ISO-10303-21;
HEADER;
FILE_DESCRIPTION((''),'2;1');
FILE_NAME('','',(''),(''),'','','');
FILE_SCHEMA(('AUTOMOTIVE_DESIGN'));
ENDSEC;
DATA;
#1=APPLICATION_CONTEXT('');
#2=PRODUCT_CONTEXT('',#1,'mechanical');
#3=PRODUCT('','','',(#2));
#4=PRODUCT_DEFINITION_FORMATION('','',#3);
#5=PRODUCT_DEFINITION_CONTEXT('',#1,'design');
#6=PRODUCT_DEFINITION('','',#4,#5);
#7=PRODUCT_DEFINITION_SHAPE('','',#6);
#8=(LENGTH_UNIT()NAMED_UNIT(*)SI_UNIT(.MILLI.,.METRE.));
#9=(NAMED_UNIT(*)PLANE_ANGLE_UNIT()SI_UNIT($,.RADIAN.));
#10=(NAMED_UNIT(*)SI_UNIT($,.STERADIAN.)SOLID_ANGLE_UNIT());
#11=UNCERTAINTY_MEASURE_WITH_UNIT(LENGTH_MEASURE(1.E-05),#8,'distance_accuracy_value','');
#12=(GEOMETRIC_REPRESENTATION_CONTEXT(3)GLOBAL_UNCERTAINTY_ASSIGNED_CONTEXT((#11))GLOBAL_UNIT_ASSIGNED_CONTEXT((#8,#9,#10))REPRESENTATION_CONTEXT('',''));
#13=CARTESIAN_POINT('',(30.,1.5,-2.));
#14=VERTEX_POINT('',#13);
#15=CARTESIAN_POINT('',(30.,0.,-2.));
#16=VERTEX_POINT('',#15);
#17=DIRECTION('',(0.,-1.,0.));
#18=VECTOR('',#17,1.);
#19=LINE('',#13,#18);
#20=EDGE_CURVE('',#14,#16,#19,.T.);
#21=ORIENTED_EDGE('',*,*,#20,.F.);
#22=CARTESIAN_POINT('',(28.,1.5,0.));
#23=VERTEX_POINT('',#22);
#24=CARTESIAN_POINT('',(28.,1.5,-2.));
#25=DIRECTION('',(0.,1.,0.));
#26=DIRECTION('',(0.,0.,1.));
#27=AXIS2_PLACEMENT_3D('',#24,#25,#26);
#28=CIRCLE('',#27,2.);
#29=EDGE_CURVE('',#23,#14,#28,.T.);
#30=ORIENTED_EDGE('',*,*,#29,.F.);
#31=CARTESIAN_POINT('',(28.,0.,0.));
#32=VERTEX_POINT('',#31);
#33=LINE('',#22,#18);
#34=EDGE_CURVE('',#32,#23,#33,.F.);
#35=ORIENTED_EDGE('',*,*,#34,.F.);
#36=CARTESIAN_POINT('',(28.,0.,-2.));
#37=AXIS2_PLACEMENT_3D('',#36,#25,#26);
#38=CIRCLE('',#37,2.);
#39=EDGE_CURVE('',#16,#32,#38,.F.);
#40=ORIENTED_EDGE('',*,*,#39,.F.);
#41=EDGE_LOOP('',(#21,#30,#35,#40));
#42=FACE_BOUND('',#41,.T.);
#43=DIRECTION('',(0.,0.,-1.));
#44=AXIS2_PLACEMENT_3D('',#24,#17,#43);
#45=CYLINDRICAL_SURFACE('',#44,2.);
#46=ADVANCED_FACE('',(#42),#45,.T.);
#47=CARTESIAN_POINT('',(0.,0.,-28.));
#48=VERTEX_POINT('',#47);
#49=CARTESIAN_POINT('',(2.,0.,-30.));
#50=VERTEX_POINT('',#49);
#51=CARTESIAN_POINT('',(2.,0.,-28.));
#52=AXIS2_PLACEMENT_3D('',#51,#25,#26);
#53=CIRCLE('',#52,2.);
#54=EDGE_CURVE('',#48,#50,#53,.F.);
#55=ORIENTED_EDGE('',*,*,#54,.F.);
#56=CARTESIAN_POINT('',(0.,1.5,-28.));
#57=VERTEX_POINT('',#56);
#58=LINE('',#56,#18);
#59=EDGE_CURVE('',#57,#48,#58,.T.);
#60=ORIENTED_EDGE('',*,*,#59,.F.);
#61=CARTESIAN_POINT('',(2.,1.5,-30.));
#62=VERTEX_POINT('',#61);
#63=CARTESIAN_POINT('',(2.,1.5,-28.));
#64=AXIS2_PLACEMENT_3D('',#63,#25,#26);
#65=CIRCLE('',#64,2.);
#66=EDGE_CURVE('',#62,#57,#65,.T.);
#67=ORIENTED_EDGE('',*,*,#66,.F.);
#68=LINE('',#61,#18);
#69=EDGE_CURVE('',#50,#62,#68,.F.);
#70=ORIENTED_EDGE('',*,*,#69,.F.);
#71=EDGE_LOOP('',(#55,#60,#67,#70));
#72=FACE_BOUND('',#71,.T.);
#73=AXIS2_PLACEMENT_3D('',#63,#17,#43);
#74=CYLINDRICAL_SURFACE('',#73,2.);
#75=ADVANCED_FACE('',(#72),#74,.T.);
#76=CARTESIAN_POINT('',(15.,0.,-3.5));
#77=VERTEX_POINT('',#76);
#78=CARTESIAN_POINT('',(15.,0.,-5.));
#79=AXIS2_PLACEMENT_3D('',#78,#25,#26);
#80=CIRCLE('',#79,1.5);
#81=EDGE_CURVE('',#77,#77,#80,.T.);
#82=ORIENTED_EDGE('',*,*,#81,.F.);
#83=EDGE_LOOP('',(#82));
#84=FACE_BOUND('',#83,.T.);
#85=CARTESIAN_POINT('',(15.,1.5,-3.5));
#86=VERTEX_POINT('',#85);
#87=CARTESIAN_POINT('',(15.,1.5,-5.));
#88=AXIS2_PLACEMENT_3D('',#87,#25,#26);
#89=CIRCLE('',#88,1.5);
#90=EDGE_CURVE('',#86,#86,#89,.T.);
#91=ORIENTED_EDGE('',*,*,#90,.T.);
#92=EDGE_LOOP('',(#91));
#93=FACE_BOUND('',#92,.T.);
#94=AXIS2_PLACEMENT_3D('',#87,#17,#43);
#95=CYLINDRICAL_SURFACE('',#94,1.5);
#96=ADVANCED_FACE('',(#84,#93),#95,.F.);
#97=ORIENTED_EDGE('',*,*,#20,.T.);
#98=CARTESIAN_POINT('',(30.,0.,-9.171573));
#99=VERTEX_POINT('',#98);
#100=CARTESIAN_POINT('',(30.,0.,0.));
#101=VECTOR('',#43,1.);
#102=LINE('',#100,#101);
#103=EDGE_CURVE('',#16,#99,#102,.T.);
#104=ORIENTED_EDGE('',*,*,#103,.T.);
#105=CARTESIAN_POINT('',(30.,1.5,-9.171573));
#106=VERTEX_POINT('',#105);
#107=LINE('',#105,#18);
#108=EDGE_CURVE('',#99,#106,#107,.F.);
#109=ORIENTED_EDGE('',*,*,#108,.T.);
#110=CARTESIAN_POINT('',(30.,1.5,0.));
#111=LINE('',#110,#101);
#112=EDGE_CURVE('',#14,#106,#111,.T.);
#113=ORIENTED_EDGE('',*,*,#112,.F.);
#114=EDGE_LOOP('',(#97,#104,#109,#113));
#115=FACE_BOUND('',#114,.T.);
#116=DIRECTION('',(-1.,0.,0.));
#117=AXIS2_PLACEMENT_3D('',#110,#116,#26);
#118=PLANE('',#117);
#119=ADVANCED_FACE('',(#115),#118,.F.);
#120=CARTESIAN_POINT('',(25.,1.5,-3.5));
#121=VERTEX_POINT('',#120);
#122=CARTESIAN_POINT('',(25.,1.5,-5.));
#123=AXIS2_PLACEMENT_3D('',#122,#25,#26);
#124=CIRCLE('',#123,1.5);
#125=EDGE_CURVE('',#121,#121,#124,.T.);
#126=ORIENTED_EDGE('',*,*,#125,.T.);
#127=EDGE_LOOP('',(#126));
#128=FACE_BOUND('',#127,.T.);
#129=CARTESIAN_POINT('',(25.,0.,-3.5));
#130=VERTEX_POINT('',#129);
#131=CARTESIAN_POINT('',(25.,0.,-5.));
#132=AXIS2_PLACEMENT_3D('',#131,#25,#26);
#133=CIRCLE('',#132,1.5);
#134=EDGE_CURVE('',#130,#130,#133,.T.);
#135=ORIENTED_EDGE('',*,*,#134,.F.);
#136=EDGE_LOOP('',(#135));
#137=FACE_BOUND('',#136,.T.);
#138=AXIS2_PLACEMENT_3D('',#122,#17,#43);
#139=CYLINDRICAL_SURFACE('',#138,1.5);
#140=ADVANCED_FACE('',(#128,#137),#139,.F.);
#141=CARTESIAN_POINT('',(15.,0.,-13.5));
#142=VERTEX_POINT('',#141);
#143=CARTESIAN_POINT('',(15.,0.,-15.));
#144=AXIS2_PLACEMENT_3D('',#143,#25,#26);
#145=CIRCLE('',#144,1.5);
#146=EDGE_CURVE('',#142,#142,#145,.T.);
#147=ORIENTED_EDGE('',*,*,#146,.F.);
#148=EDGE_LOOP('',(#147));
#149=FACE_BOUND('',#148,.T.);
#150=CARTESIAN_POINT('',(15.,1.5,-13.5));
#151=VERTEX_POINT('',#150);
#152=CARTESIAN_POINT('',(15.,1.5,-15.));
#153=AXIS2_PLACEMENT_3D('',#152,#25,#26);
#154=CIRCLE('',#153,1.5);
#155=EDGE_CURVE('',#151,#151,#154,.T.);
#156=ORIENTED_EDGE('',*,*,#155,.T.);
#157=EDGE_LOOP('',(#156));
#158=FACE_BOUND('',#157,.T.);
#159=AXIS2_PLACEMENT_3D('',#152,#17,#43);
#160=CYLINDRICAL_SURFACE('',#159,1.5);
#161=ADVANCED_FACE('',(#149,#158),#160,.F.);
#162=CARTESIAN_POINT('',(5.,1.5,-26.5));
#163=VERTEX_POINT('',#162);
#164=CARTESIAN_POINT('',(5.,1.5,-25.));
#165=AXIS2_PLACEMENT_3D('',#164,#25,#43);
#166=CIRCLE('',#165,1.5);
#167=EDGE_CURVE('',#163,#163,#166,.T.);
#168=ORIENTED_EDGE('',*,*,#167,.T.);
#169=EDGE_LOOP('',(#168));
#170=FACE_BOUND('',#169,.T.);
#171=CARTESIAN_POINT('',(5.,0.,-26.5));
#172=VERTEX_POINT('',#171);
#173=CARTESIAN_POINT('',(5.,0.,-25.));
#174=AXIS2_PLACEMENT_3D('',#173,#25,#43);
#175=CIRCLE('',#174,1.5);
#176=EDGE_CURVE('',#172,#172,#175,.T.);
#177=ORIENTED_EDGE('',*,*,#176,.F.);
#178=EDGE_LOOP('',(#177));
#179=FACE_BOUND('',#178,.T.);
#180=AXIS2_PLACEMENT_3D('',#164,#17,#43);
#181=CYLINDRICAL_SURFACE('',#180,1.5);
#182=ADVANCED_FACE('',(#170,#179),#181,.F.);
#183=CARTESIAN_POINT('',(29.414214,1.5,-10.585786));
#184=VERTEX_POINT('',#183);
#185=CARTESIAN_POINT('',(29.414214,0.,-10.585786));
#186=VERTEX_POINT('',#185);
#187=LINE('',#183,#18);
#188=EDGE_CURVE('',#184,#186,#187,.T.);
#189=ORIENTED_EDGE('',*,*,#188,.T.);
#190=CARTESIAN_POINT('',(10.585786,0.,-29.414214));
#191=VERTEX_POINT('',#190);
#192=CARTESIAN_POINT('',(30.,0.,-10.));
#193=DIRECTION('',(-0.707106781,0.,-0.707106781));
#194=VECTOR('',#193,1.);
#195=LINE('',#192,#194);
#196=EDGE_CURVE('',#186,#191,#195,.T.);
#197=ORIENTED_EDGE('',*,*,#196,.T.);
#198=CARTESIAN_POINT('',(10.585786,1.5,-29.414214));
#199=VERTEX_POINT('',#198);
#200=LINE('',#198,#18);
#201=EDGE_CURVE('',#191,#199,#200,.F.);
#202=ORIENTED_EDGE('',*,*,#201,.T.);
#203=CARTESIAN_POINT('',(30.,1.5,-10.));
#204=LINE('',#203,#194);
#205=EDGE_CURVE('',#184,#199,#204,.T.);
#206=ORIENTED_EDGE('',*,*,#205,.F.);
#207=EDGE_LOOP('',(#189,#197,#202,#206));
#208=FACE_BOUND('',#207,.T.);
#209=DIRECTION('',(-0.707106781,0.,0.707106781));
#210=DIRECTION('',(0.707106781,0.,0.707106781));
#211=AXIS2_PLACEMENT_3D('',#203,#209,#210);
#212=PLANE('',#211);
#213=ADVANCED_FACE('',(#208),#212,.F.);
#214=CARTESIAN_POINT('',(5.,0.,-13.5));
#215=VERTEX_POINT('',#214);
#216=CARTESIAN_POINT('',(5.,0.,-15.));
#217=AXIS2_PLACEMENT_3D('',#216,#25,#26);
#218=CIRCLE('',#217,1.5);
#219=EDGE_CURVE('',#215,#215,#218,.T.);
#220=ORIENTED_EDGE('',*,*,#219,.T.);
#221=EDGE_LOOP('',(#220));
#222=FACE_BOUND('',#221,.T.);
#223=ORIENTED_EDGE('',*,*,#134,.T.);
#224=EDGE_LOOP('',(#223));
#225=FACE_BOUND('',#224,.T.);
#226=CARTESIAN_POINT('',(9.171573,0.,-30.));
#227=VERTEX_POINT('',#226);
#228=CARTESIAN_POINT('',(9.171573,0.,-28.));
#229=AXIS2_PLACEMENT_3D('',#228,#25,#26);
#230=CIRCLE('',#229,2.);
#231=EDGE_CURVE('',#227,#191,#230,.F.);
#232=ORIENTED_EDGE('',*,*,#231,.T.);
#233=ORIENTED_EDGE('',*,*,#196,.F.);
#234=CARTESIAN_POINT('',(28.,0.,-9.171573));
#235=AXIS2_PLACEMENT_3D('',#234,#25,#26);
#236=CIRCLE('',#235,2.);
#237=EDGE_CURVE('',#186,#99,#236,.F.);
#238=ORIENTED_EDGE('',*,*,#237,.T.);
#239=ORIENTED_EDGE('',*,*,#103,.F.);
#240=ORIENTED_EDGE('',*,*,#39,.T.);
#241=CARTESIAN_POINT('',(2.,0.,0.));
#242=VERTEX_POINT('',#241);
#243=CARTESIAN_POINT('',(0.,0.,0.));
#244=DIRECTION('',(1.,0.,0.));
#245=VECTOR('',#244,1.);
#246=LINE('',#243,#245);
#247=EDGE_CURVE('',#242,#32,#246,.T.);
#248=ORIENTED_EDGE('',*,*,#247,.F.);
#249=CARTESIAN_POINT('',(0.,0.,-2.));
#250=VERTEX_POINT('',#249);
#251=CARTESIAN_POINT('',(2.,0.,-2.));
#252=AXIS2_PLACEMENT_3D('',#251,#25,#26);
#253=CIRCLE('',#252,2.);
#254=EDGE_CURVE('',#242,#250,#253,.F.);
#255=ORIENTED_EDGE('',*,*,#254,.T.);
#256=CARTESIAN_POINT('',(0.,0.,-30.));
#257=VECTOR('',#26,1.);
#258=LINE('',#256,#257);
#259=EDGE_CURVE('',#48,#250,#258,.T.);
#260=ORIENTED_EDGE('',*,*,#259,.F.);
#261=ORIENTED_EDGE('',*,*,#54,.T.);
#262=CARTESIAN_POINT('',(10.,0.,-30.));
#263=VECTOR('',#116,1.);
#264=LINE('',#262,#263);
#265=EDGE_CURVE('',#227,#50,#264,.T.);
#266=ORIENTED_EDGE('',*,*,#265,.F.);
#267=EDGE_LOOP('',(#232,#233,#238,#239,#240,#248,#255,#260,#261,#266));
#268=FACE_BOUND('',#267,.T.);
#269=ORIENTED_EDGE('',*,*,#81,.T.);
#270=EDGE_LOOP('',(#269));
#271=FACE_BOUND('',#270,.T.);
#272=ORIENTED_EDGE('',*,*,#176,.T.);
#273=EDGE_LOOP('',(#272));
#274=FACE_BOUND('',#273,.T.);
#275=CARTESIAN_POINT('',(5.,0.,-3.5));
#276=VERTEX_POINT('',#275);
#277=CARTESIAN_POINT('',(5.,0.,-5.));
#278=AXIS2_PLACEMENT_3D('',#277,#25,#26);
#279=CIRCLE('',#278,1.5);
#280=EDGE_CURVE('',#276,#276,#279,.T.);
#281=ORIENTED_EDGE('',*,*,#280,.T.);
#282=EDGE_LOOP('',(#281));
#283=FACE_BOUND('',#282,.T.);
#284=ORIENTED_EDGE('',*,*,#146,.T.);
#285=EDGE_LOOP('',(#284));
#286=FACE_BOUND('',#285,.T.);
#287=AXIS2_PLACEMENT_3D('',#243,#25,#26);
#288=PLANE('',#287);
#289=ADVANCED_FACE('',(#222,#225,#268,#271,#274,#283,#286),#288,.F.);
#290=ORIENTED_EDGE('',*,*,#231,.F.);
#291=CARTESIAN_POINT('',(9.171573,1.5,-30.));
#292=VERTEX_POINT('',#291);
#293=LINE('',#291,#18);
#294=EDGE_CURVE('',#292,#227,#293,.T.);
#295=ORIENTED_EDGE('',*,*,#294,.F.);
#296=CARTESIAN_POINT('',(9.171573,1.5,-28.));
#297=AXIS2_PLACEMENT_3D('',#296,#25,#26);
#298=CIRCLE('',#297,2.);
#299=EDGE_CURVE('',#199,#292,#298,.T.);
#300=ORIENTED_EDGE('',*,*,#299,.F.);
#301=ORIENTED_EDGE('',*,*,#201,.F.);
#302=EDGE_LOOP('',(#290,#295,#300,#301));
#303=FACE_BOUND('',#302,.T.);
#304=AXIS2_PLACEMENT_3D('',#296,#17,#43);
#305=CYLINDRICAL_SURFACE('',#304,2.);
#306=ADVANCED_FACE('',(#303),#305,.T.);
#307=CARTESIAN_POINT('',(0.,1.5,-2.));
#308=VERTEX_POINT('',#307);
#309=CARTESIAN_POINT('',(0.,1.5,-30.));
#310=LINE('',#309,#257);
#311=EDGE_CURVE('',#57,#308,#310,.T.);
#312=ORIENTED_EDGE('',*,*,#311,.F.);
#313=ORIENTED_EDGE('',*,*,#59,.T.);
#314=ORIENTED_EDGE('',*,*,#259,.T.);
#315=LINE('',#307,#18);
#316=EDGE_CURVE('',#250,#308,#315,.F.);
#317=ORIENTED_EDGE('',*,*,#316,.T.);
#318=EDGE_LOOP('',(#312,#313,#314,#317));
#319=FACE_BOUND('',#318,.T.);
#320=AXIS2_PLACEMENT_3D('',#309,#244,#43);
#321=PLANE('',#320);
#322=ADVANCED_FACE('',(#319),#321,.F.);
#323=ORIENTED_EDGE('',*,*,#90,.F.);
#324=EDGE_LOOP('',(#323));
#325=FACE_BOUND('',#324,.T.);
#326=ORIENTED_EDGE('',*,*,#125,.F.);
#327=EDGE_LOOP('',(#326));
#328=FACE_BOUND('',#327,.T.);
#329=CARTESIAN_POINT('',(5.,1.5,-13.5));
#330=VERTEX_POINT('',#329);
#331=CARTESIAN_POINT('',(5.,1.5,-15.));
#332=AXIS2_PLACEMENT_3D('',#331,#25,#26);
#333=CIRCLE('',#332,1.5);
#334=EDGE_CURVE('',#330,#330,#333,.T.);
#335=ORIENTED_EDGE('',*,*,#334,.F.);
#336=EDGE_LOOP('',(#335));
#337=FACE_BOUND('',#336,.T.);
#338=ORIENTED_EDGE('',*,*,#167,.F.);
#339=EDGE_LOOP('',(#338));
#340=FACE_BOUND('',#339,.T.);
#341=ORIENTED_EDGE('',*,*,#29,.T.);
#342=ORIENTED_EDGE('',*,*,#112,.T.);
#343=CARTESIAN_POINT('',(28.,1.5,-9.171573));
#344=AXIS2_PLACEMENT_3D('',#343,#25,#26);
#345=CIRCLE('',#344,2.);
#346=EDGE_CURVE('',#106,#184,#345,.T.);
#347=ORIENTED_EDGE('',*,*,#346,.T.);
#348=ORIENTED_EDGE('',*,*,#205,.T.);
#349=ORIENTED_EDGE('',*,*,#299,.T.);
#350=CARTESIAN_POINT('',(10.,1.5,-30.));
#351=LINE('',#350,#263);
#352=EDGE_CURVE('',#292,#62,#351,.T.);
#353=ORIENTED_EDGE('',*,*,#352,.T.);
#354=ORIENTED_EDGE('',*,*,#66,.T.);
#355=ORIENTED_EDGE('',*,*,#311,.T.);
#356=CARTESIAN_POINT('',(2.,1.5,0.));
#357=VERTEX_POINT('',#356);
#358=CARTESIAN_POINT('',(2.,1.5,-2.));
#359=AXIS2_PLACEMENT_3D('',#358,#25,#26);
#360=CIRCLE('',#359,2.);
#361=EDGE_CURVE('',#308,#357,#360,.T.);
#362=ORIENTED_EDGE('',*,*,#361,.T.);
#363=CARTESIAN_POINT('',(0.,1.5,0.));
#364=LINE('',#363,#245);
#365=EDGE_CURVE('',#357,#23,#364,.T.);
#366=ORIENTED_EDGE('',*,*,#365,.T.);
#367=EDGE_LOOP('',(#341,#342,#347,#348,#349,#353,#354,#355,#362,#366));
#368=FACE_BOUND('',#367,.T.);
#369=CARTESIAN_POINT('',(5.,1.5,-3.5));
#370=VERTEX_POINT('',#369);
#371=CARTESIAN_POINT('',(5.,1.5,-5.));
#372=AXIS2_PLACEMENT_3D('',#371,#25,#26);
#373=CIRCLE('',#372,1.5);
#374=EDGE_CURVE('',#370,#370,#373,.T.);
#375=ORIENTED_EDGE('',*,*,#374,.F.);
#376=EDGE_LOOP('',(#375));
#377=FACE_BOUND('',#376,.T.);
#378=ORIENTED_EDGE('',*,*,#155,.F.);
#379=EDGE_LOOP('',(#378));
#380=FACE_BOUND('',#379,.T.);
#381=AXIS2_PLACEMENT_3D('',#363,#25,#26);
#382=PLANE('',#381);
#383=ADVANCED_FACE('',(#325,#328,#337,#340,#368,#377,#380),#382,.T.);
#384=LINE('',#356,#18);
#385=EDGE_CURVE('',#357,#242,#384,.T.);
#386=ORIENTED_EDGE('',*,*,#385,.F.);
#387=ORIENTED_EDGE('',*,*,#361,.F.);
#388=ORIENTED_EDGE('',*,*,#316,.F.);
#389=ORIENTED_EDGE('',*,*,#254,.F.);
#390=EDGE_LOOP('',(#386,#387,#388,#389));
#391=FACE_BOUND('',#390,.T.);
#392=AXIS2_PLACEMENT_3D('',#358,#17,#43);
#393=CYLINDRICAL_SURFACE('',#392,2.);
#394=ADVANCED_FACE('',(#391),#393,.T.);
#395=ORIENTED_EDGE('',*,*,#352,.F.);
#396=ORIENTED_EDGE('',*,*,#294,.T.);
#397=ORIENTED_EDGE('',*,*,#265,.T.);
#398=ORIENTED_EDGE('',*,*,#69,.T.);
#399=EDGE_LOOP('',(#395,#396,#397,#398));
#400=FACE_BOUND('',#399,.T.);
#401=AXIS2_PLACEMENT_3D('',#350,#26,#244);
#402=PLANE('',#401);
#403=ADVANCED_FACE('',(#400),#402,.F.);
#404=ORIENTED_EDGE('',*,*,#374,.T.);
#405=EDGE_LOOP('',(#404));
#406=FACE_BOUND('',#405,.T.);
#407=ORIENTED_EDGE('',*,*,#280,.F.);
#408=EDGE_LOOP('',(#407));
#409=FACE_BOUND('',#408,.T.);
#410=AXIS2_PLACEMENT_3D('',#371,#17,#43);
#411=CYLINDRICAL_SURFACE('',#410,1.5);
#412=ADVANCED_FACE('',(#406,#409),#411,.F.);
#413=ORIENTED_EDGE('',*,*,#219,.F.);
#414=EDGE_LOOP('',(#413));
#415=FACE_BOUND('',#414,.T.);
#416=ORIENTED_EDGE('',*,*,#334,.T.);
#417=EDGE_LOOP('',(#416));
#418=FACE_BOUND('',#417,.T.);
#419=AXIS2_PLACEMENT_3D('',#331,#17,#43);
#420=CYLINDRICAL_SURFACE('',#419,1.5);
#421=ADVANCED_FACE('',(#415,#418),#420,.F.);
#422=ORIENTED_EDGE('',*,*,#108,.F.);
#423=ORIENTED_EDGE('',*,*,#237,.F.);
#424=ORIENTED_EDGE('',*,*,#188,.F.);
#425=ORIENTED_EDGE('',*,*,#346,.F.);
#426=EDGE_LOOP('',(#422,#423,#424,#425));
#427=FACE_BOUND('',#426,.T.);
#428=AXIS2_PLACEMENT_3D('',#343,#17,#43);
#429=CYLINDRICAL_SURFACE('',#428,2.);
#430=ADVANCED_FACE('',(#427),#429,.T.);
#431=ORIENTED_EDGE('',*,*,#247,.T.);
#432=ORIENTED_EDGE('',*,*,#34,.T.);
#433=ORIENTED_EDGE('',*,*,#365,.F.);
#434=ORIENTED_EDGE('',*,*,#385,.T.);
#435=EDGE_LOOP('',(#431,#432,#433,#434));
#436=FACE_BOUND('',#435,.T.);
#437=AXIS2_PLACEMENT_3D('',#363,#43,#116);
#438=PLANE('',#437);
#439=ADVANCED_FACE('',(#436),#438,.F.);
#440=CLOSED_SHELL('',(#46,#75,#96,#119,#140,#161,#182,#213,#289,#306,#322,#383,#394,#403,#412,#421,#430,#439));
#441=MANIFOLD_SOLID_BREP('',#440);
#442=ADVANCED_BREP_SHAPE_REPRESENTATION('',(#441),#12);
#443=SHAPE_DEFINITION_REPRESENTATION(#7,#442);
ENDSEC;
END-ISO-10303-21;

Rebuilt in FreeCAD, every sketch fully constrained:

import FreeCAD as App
import Part
import Sketcher
Q = App.Units.Quantity


def edges_at(feature, points):
    """Names of the edges that pass closest to the given points."""
    edges = feature.Shape.Edges
    near = lambda p: min(range(len(edges)), key=lambda i: edges[i].distToShape(Part.Vertex(*p))[0])
    return sorted({f"Edge{near(p) + 1}" for p in points})

doc = App.newDocument("Part")
params = doc.addObject("Spreadsheet::Sheet", "Params")
for row, (alias, value) in enumerate([
    ("sketch1_diameter", "3 mm"),
    ("sketch1_width", "30 mm"),
    ("sketch1_width2", "10 mm"),
    ("pad1_length", "1.5 mm"),
    ("fillet_radius", "2 mm"),
], start=1):
    params.set(f"A{row}", alias)
    params.set(f"B{row}", "=" + value)
    params.setAlias(f"B{row}", alias)

body = doc.addObject("PartDesign::Body", "Body")

# Sketch on XZ plane
sketch1 = body.newObject("Sketcher::SketchObject", "Sketch")
sketch1.AttachmentSupport = (doc.getObject("XZ_Plane"), [""])
sketch1.MapMode = "FlatFace"
sketch1.addGeometry([
    Part.LineSegment(App.Vector(0, 0, 0), App.Vector(30, 0, 0)),  # 0
    Part.LineSegment(App.Vector(30, 0, 0), App.Vector(30, -10, 0)),  # 1
    Part.LineSegment(App.Vector(30, -10, 0), App.Vector(10, -30, 0)),  # 2
    Part.LineSegment(App.Vector(10, -30, 0), App.Vector(0, -30, 0)),  # 3
    Part.LineSegment(App.Vector(0, -30, 0), App.Vector(0, 0, 0)),  # 4
    Part.Circle(App.Vector(5, -5, 0), App.Vector(0, 0, 1), 1.5),  # 5
    Part.Circle(App.Vector(15, -5, 0), App.Vector(0, 0, 1), 1.5),  # 6
    Part.Circle(App.Vector(25, -5, 0), App.Vector(0, 0, 1), 1.5),  # 7
    Part.Circle(App.Vector(5, -15, 0), App.Vector(0, 0, 1), 1.5),  # 8
    Part.Circle(App.Vector(5, -25, 0), App.Vector(0, 0, 1), 1.5),  # 9
    Part.Circle(App.Vector(15, -15, 0), App.Vector(0, 0, 1), 1.5),  # 10
], False)
sketch1.addConstraint([
    Sketcher.Constraint("Coincident", 0, 2, 1, 1),
    Sketcher.Constraint("Coincident", 1, 2, 2, 1),
    Sketcher.Constraint("Coincident", 2, 2, 3, 1),
    Sketcher.Constraint("Coincident", 3, 2, 4, 1),
    Sketcher.Constraint("Coincident", 4, 2, 0, 1),
    Sketcher.Constraint("Horizontal", 0),
    Sketcher.Constraint("Vertical", 1),
    Sketcher.Constraint("Horizontal", 3),
    Sketcher.Constraint("Vertical", 4),
    Sketcher.Constraint("Coincident", 4, 2, -1, 1),
    Sketcher.Constraint("Equal", 5, 6),
    Sketcher.Constraint("Equal", 6, 7),
    Sketcher.Constraint("Equal", 7, 8),
    Sketcher.Constraint("Equal", 8, 9),
    Sketcher.Constraint("Equal", 9, 10),
    Sketcher.Constraint("Horizontal", 5, 3, 6, 3),
    Sketcher.Constraint("Horizontal", 6, 3, 7, 3),
    Sketcher.Constraint("Horizontal", 8, 3, 10, 3),
    Sketcher.Constraint("Vertical", 5, 3, 8, 3),
    Sketcher.Constraint("Vertical", 8, 3, 9, 3),
    Sketcher.Constraint("Vertical", 6, 3, 10, 3),
    Sketcher.Constraint("Equal", 3, 1),
    Sketcher.Constraint("Equal", 0, 4),
    Sketcher.Constraint("Diameter", 5, Q("3 mm")),
    Sketcher.Constraint("DistanceX", 0, 1, 0, 2, Q("30 mm")),
    Sketcher.Constraint("DistanceX", 3, 2, 3, 1, Q("10 mm")),
    Sketcher.Constraint("DistanceX", -1, 1, 5, 3, Q("5 mm")),
    Sketcher.Constraint("DistanceY", 5, 3, -1, 1, Q("5 mm")),
    Sketcher.Constraint("DistanceX", -1, 1, 6, 3, Q("15 mm")),
    Sketcher.Constraint("DistanceX", -1, 1, 7, 3, Q("25 mm")),
    Sketcher.Constraint("DistanceY", 8, 3, -1, 1, Q("15 mm")),
    Sketcher.Constraint("DistanceY", 9, 3, -1, 1, Q("25 mm")),
])
sketch1.setExpression("Constraints[23]", "Params.sketch1_diameter")
sketch1.setExpression("Constraints[24]", "Params.sketch1_width")
sketch1.setExpression("Constraints[25]", "Params.sketch1_width2")
pad1 = body.newObject("PartDesign::Pad", "Pad")
pad1.Profile = sketch1
pad1.setExpression("Length", "Params.pad1_length")
pad1.Reversed = True
doc.recompute()

fillet = body.newObject("PartDesign::Fillet", "Fillet")
fillet.Base = (pad1, edges_at(pad1, [
    (0, 0.75, -30),
    (10, 0.75, -30),
    (30, 0.75, -10),
    (30, 0.75, 0),
    (0, 0.75, 0),
]))
fillet.setExpression("Radius", "Params.fillet_radius")

doc.recompute()
